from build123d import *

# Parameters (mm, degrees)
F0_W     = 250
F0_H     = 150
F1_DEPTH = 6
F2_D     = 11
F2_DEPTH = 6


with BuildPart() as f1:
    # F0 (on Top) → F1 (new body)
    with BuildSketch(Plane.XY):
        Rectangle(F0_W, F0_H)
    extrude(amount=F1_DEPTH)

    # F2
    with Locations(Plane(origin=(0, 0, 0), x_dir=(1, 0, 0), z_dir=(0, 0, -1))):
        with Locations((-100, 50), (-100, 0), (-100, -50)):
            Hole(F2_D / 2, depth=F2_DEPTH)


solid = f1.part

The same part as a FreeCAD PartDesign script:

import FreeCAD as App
import Part
import Sketcher

V = App.Vector
Q = App.Units.Quantity

doc = App.newDocument("Part")
body = doc.addObject("PartDesign::Body", "Body")

# Sketch on XY plane
sketch1 = body.newObject("Sketcher::SketchObject", "Sketch")
sketch1.AttachmentSupport = (doc.getObject("XY_Plane"), [""])
sketch1.MapMode = "FlatFace"
sketch1.addGeometry([
    Part.LineSegment(V(-125, 75, 0), V(-125, -75, 0)),
    Part.LineSegment(V(-125, -75, 0), V(125, -75, 0)),
    Part.LineSegment(V(125, -75, 0), V(125, 75, 0)),
    Part.LineSegment(V(125, 75, 0), V(-125, 75, 0)),
], False)
sketch1.addConstraint([
    Sketcher.Constraint("Coincident", 0, 2, 1, 1),
    Sketcher.Constraint("Coincident", 1, 2, 2, 1),
    Sketcher.Constraint("Coincident", 2, 2, 3, 1),
    Sketcher.Constraint("Coincident", 3, 2, 0, 1),
    Sketcher.Constraint("Vertical", 0),
    Sketcher.Constraint("Horizontal", 1),
    Sketcher.Constraint("Vertical", 2),
    Sketcher.Constraint("Horizontal", 3),
    Sketcher.Constraint("Symmetric", 0, 2, 2, 2, -1, 1),
    Sketcher.Constraint("DistanceX", 1, 1, 1, 2, Q("250 mm")),
    Sketcher.Constraint("DistanceY", 0, 2, 0, 1, Q("150 mm")),
])
pad1 = body.newObject("PartDesign::Pad", "Pad")
pad1.Profile = sketch1
pad1.Length = 6

# Sketch on XY plane
sketch2 = body.newObject("Sketcher::SketchObject", "Sketch001")
sketch2.AttachmentSupport = (doc.getObject("XY_Plane"), [""])
sketch2.MapMode = "FlatFace"
sketch2.addGeometry([
    Part.Circle(V(-100, -50, 0), V(0, 0, 1), 5.5),
    Part.Circle(V(-100, 0, 0), V(0, 0, 1), 5.5),
    Part.Circle(V(-100, 50, 0), V(0, 0, 1), 5.5),
], False)
sketch2.addConstraint([
    Sketcher.Constraint("Equal", 0, 1),
    Sketcher.Constraint("Equal", 1, 2),
    Sketcher.Constraint("Symmetric", 0, 3, 2, 3, -1),
    Sketcher.Constraint("PointOnObject", 1, 3, -1),
    Sketcher.Constraint("Vertical", 0, 3, 1, 3),
    Sketcher.Constraint("Diameter", 0, Q("11 mm")),
    Sketcher.Constraint("DistanceX", 0, 3, -1, 1, Q("100 mm")),
    Sketcher.Constraint("DistanceY", 0, 3, -1, 1, Q("50 mm")),
])
doc.recompute()
hole = body.newObject("PartDesign::Hole", "Hole")
hole.Profile = sketch2
hole.ThreadType = "None"
hole.Diameter = 11
hole.DepthType = "Dimension"
hole.Depth = 6
hole.DrillPoint = "Flat"
hole.Reversed = True

doc.recompute()
